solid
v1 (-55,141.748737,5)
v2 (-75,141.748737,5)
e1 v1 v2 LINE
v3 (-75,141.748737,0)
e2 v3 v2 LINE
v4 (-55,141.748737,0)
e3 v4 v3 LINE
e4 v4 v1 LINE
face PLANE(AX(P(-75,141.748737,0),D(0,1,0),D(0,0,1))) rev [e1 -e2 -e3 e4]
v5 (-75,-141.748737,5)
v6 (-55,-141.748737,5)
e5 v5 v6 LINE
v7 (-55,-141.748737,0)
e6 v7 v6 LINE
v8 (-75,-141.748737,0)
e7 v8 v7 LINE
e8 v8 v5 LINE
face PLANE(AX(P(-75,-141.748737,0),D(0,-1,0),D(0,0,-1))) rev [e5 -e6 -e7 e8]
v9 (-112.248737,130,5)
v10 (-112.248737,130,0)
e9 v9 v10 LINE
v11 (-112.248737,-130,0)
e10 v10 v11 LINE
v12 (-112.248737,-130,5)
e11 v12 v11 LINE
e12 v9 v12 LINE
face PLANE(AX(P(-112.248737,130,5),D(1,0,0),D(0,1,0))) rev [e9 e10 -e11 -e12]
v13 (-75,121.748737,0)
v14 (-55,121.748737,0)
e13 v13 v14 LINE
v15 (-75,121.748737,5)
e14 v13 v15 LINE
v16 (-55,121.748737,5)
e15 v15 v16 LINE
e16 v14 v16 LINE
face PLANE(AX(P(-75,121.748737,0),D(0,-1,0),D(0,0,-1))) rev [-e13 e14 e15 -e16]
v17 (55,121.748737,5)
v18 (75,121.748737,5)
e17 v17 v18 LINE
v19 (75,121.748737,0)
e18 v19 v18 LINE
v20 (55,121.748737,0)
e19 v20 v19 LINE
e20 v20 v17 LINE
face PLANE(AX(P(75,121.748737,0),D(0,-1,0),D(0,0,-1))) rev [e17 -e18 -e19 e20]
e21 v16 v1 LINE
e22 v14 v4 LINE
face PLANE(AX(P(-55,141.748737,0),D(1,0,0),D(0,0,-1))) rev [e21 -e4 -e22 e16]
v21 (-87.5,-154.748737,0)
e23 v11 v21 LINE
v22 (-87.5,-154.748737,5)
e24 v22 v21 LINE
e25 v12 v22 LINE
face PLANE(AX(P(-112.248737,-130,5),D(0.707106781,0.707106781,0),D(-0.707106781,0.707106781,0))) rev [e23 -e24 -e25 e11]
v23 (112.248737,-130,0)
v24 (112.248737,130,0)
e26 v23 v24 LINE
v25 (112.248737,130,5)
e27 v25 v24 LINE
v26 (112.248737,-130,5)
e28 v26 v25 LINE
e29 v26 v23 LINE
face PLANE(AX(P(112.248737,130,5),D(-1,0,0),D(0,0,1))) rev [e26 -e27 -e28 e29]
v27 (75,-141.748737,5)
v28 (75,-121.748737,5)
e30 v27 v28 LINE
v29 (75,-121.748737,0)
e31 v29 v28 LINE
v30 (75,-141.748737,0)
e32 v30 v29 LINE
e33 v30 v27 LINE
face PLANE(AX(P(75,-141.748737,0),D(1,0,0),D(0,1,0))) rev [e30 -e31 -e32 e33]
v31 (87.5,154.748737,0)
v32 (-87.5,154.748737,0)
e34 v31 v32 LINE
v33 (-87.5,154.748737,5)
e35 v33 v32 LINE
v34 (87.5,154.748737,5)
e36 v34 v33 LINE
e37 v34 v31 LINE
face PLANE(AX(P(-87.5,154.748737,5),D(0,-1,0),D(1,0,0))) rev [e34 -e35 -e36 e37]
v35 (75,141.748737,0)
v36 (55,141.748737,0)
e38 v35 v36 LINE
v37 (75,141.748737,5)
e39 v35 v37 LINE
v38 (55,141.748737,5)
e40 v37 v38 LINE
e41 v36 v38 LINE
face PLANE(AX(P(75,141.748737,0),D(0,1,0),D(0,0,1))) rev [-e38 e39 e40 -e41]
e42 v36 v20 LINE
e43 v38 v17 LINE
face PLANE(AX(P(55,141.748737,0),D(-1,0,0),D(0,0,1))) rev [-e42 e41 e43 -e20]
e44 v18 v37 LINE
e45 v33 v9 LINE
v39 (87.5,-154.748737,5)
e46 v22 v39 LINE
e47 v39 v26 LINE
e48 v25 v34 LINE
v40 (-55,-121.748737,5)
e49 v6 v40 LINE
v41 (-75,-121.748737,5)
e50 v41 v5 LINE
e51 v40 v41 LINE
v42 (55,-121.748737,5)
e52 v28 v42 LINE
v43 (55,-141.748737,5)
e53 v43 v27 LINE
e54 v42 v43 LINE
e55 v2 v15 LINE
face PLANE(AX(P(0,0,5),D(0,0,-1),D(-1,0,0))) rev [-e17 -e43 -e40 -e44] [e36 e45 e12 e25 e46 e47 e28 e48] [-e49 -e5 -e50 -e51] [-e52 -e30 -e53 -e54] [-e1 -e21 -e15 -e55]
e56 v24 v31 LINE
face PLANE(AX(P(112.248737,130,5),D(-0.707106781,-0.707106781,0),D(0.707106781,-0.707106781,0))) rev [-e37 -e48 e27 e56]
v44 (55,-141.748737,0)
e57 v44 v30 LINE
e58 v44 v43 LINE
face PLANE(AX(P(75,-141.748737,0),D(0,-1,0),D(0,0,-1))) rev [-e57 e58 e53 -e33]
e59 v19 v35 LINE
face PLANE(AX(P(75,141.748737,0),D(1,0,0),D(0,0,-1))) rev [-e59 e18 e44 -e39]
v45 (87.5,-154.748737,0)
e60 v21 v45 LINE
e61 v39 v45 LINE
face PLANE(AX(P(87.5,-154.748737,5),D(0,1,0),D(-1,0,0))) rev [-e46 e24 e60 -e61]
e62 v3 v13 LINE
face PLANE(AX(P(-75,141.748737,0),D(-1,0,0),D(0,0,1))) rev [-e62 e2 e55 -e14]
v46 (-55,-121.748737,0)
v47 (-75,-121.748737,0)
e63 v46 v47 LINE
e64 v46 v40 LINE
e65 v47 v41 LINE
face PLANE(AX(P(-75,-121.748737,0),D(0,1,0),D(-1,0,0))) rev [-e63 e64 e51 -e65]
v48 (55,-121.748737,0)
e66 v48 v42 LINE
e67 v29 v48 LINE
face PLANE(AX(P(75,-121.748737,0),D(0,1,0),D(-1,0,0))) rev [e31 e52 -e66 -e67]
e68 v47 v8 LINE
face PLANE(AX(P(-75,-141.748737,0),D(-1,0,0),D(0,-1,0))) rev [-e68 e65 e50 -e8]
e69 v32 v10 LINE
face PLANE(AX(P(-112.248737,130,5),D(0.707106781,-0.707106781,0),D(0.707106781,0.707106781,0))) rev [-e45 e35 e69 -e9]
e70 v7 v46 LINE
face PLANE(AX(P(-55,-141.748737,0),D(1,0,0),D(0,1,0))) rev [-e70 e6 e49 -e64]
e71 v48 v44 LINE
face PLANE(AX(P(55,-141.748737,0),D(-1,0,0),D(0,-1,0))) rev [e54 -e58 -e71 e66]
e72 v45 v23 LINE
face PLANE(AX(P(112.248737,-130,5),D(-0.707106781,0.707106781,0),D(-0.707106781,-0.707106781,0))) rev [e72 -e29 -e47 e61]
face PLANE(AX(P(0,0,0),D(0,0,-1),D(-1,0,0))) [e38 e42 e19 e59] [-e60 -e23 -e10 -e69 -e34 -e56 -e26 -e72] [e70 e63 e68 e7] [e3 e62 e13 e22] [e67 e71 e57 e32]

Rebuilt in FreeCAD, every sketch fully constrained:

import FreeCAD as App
import Part
import Sketcher

V = App.Vector


def add_polygon(sketch, points):
    """Adds a closed chain of lines whose ends are joined by coincident constraints."""
    first, n = sketch.GeometryCount, len(points)
    for a, b in zip(points, points[1:] + points[:1]):
        sketch.addGeometry(Part.LineSegment(App.Vector(*a, 0), App.Vector(*b, 0)), False)
    for i in range(n):
        sketch.addConstraint(Sketcher.Constraint("Coincident", first + i, 2, first + (i + 1) % n, 1))

doc = App.newDocument("Part")
params = doc.addObject("Spreadsheet::Sheet", "Params")
for row, (alias, value) in enumerate([
    ("sketch1_width", "175 mm"),
    ("sketch1_height", "260 mm"),
    ("sketch1_length", "35 mm"),
    ("pad1_length", "5 mm"),
    ("sketch2_width", "20 mm"),
    ("pocket1_length", "5 mm"),
], start=1):
    params.set(f"A{row}", alias)
    params.set(f"B{row}", "=" + value)
    params.setAlias(f"B{row}", alias)

body = doc.addObject("PartDesign::Body", "Body")

# Sketch on XY plane
sketch1 = body.newObject("Sketcher::SketchObject", "Sketch")
sketch1.AttachmentSupport = (doc.getObject("XY_Plane"), [""])
sketch1.MapMode = "FlatFace"
add_polygon(sketch1, [(-112.248737, -130), (-87.5, -154.748737), (87.5, -154.748737), (112.248737, -130), (112.248737, 130), (87.5, 154.748737), (-87.5, 154.748737), (-112.248737, 130)])  # lines 0-7
sketch1.addConstraint(Sketcher.Constraint("Horizontal", 1))
sketch1.addConstraint(Sketcher.Constraint("Vertical", 3))
sketch1.addConstraint(Sketcher.Constraint("Horizontal", 5))
sketch1.addConstraint(Sketcher.Constraint("Vertical", 7))
sketch1.addConstraint(Sketcher.Constraint("Symmetric", 0, 2, 4, 2, -1, 1))
sketch1.addConstraint(Sketcher.Constraint("Symmetric", 2, 2, 6, 2, -1, 1))
sketch1.addConstraint(Sketcher.Constraint("Perpendicular", 0, 2))
sketch1.addConstraint(Sketcher.Constraint("Perpendicular", 2, 4))
sketch1.addConstraint(Sketcher.Constraint("Perpendicular", 4, 6))
sketch1.addConstraint(Sketcher.Constraint("Horizontal", 3, 2, 6, 2))
sketch1.addConstraint(Sketcher.Constraint("Vertical", 1, 2, 4, 2))
sketch1.addConstraint(Sketcher.Constraint("DistanceX", 1, 1, 1, 2, 175.0))
sketch1.addConstraint(Sketcher.Constraint("DistanceY", 3, 1, 3, 2, 260.0))
sketch1.addConstraint(Sketcher.Constraint("Distance", 0, 35.0))
sketch1.setExpression("Constraints[19]", "Params.sketch1_width")
sketch1.setExpression("Constraints[20]", "Params.sketch1_height")
sketch1.setExpression("Constraints[21]", "Params.sketch1_length")
pad1 = body.newObject("PartDesign::Pad", "Pad")
pad1.Profile = sketch1
pad1.setExpression("Length", "Params.pad1_length")

# Sketch on XY plane
sketch2 = body.newObject("Sketcher::SketchObject", "Sketch001")
sketch2.AttachmentSupport = (doc.getObject("XY_Plane"), [""])
sketch2.MapMode = "FlatFace"
sketch2.AttachmentOffset = App.Placement(V(0, 0, 5), App.Rotation())
add_polygon(sketch2, [(-75, 141.748737), (-75, 121.748737), (-55, 121.748737), (-55, 141.748737)])  # lines 0-3
add_polygon(sketch2, [(-75, -121.748737), (-75, -141.748737), (-55, -141.748737), (-55, -121.748737)])  # lines 4-7
add_polygon(sketch2, [(55, -121.748737), (55, -141.748737), (75, -141.748737), (75, -121.748737)])  # lines 8-11
add_polygon(sketch2, [(55, 141.748737), (55, 121.748737), (75, 121.748737), (75, 141.748737)])  # lines 12-15
sketch2.addConstraint(Sketcher.Constraint("Vertical", 0))
sketch2.addConstraint(Sketcher.Constraint("Horizontal", 1))
sketch2.addConstraint(Sketcher.Constraint("Vertical", 2))
sketch2.addConstraint(Sketcher.Constraint("Horizontal", 3))
sketch2.addConstraint(Sketcher.Constraint("Vertical", 4))
sketch2.addConstraint(Sketcher.Constraint("Horizontal", 5))
sketch2.addConstraint(Sketcher.Constraint("Vertical", 6))
sketch2.addConstraint(Sketcher.Constraint("Horizontal", 7))
sketch2.addConstraint(Sketcher.Constraint("Vertical", 8))
sketch2.addConstraint(Sketcher.Constraint("Horizontal", 9))
sketch2.addConstraint(Sketcher.Constraint("Vertical", 10))
sketch2.addConstraint(Sketcher.Constraint("Horizontal", 11))
sketch2.addConstraint(Sketcher.Constraint("Vertical", 12))
sketch2.addConstraint(Sketcher.Constraint("Horizontal", 13))
sketch2.addConstraint(Sketcher.Constraint("Vertical", 14))
sketch2.addConstraint(Sketcher.Constraint("Horizontal", 15))
sketch2.addConstraint(Sketcher.Constraint("Symmetric", 2, 2, 8, 2, -1, 1))
sketch2.addConstraint(Sketcher.Constraint("Symmetric", 0, 2, 10, 2, -1, 1))
sketch2.addConstraint(Sketcher.Constraint("Symmetric", 6, 2, 12, 2, -1, 1))
sketch2.addConstraint(Sketcher.Constraint("Symmetric", 4, 2, 14, 2, -1, 1))
sketch2.addConstraint(Sketcher.Constraint("Symmetric", 5, 2, 8, 2, -2))
sketch2.addConstraint(Sketcher.Constraint("Symmetric", 7, 2, 10, 2, -2))
sketch2.addConstraint(Sketcher.Constraint("Equal", 15, 0))
sketch2.addConstraint(Sketcher.Constraint("DistanceX", 1, 1, 1, 2, 20.0))
sketch2.addConstraint(Sketcher.Constraint("DistanceX", 0, 2, -1, 1, 75.0))
sketch2.addConstraint(Sketcher.Constraint("DistanceY", -1, 1, 0, 2, 121.748737))
sketch2.setExpression("Constraints[39]", "Params.sketch2_width")
pocket1 = body.newObject("PartDesign::Pocket", "Pocket")
pocket1.Profile = sketch2
pocket1.setExpression("Length", "Params.pocket1_length")

doc.recompute()
